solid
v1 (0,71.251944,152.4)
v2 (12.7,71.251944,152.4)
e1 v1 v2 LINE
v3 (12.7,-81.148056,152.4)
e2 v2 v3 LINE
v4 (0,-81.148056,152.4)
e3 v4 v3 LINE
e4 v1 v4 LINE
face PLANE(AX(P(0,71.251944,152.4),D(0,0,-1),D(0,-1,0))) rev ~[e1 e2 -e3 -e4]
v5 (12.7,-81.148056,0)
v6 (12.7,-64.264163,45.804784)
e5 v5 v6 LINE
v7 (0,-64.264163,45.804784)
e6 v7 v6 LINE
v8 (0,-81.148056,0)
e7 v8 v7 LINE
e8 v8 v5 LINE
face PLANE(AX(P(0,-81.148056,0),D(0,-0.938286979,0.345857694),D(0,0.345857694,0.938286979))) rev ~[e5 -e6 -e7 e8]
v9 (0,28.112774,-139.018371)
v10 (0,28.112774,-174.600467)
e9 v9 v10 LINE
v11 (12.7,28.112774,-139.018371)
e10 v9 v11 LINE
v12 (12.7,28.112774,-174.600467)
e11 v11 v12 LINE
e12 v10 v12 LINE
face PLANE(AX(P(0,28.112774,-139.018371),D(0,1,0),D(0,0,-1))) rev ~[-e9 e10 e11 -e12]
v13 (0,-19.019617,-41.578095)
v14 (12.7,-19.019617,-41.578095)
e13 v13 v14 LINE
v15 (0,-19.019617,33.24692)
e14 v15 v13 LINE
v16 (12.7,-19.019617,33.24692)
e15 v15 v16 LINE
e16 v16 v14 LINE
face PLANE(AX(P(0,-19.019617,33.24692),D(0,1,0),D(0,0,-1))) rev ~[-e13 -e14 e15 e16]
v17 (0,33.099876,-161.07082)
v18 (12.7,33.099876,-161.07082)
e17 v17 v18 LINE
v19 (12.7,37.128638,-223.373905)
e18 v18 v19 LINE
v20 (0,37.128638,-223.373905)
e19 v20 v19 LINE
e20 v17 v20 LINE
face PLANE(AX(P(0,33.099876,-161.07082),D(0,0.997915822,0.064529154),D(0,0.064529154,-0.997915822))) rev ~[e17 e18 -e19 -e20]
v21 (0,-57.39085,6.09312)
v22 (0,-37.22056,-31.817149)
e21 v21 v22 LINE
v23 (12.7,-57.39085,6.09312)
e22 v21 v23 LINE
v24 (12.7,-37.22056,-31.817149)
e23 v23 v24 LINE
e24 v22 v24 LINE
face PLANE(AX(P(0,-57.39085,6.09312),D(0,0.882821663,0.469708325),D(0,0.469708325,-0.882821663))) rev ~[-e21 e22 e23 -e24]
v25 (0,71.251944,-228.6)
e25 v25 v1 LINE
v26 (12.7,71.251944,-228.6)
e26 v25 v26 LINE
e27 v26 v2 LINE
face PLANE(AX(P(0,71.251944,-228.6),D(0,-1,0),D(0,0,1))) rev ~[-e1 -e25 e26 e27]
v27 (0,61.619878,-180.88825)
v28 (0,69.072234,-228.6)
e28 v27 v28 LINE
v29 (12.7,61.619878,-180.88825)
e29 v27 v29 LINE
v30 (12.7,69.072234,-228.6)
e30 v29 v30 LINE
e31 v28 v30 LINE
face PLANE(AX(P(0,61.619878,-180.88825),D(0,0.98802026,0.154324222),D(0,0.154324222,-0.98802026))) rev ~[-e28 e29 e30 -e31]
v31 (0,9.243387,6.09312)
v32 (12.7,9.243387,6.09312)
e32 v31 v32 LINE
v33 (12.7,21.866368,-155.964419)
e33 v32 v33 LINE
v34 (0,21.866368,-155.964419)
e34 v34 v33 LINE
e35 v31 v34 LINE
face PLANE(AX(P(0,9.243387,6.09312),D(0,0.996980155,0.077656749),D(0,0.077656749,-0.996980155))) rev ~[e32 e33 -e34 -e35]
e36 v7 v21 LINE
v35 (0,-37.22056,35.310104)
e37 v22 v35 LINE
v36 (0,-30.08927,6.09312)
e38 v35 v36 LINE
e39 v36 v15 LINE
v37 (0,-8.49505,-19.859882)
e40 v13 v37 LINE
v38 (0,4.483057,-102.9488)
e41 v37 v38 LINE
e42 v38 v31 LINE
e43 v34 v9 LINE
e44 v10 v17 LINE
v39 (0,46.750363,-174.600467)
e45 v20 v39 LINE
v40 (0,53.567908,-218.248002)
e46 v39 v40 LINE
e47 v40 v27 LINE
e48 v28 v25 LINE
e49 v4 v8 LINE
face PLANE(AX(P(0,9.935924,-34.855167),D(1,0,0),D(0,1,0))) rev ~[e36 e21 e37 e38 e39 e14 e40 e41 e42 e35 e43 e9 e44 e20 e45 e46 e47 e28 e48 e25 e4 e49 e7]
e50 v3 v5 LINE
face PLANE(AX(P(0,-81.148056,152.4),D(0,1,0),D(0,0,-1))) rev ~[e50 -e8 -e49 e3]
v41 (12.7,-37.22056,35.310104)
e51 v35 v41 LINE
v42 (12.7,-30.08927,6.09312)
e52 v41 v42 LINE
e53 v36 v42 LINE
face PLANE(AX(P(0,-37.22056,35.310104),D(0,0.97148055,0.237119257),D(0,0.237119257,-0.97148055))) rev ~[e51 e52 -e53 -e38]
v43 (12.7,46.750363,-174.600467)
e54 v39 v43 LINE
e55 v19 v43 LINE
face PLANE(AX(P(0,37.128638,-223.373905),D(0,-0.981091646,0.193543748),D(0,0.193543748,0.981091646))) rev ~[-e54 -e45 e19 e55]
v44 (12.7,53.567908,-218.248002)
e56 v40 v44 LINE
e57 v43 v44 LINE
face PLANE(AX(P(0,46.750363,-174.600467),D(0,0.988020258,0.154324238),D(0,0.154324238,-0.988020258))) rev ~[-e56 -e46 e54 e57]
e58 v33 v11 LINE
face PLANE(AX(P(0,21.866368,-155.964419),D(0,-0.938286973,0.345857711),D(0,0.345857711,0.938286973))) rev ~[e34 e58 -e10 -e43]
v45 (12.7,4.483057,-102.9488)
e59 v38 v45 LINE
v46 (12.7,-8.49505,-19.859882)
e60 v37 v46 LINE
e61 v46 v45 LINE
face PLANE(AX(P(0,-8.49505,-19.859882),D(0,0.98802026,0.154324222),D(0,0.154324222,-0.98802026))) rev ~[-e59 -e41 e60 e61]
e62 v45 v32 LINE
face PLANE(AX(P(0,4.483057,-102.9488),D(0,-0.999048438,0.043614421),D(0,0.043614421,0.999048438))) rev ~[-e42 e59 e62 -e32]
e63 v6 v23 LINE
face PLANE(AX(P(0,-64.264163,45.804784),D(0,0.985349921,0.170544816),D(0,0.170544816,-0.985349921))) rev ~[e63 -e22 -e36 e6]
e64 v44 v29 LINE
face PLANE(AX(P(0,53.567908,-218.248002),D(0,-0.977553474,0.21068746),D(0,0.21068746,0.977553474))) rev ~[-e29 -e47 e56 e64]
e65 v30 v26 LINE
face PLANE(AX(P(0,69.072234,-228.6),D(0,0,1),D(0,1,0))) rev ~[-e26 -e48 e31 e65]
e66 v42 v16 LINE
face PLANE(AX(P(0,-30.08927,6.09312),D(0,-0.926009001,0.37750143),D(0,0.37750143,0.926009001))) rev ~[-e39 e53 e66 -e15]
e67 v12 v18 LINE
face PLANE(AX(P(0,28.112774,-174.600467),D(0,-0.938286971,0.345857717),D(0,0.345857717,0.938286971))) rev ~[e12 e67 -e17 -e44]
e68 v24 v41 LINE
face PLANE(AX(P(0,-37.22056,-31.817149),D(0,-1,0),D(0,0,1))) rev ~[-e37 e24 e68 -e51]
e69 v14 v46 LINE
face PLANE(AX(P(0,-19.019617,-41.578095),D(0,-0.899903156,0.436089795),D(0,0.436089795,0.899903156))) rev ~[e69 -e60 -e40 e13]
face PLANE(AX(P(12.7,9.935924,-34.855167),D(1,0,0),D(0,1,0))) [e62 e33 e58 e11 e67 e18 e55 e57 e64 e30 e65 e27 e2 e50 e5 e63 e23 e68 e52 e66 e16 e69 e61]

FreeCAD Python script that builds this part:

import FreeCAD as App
import Part
import Sketcher

V = App.Vector
Q = App.Units.Quantity


def add_polygon(sketch, points):
    """Adds a closed chain of lines whose ends are joined by coincident constraints."""
    first, n = sketch.GeometryCount, len(points)
    for a, b in zip(points, points[1:] + points[:1]):
        sketch.addGeometry(Part.LineSegment(App.Vector(*a, 0), App.Vector(*b, 0)), False)
    for i in range(n):
        sketch.addConstraint(Sketcher.Constraint("Coincident", first + i, 2, first + (i + 1) % n, 1))

doc = App.newDocument("Part")
body = doc.addObject("PartDesign::Body", "Body")

# Sketch on YZ plane
sketch1 = body.newObject("Sketcher::SketchObject", "Sketch")
sketch1.AttachmentSupport = (doc.getObject("YZ_Plane"), [""])
sketch1.MapMode = "FlatFace"
add_polygon(sketch1, [(-81.148056, 152.4), (-81.148056, 0), (-64.264163, 45.804784), (-57.39085, 6.09312), (-37.22056, -31.817149), (-37.22056, 35.310104), (-30.08927, 6.09312), (-19.019617, 33.24692), (-19.019617, -41.578095), (-8.49505, -19.859882), (4.483057, -102.9488), (9.243387, 6.09312), (21.866368, -155.964419), (28.112774, -139.018371), (28.112774, -174.600467), (33.099876, -161.07082), (37.128638, -223.373905), (46.750363, -174.600467), (53.567908, -218.248002), (61.619878, -180.88825), (69.072234, -228.6), (71.251944, -228.6), (71.251944, 152.4)])  # lines 0-22
sketch1.addConstraint([
    Sketcher.Constraint("Vertical", 0),
    Sketcher.Constraint("Vertical", 4),
    Sketcher.Constraint("Vertical", 7),
    Sketcher.Constraint("Vertical", 13),
    Sketcher.Constraint("Horizontal", 20),
    Sketcher.Constraint("Vertical", 21),
    Sketcher.Constraint("Horizontal", 22),
    Sketcher.Constraint("PointOnObject", 0, 2, -1),
    Sketcher.Constraint("Parallel", 1, 12),
    Sketcher.Constraint("Parallel", 12, 14),
    Sketcher.Constraint("Parallel", 9, 17),
    Sketcher.Constraint("Parallel", 17, 19),
    Sketcher.Constraint("Horizontal", 2, 2, 5, 2),
    Sketcher.Constraint("Horizontal", 5, 2, 10, 2),
    Sketcher.Constraint("Horizontal", 13, 2, 16, 2),
    Sketcher.Constraint("Equal", 22, 0),
    Sketcher.Constraint("DistanceX", 22, 2, 22, 1, Q("6 in")),
    Sketcher.Constraint("DistanceY", 21, 1, 21, 2, Q("15 in")),
    Sketcher.Constraint("DistanceX", 18, 2, 19, 2, Q("0.2933998 in")),
    Sketcher.Constraint("DistanceX", 20, 1, 20, 2, 2.17971),
    Sketcher.Constraint("DistanceY", 9, 2, -1, 1, 102.9488),
    Sketcher.Constraint("DistanceY", 5, 2, 6, 2, 27.1538),
    Sketcher.Constraint("DistanceY", 8, 2, 5, 2, 25.953002),
    Sketcher.Constraint("DistanceX", 2, 2, 8, 2, 48.8958),
    Sketcher.Constraint("DistanceY", 14, 2, 11, 2, 5.106401),
    Sketcher.Constraint("DistanceX", 14, 2, 18, 2, 28.520002),
    Sketcher.Constraint("Distance", 3, 42.94216),
    Sketcher.Constraint("Distance", 9, 84.096371),
    Sketcher.Constraint("Distance", 10, 109.145779),
    Sketcher.Constraint("Distance", 11, 162.54841),
    Sketcher.Constraint("Distance", 14, 14.419519),
    Sketcher.Constraint("Distance", 17, 44.176761),
    Sketcher.Constraint("DistanceY", 4, 1, 4, 2, 67.127253),
    Sketcher.Constraint("DistanceY", 7, 2, 7, 1, 74.825015),
    Sketcher.Constraint("DistanceY", 13, 2, 13, 1, 35.582096),
    Sketcher.Constraint("DistanceX", 2, 2, -1, 1, 57.39085),
    Sketcher.Constraint("DistanceY", -1, 1, 2, 2, 6.09312),
    Sketcher.Constraint("DistanceX", 3, 2, -1, 1, 37.22056),
    Sketcher.Constraint("DistanceX", 5, 2, -1, 1, 30.08927),
    Sketcher.Constraint("DistanceX", -1, 1, 11, 2, 21.866368),
    Sketcher.Constraint("DistanceY", 12, 2, -1, 1, 139.018371),
    Sketcher.Constraint("DistanceX", -1, 1, 15, 2, 37.128638),
    Sketcher.Constraint("DistanceX", -1, 1, 17, 2, 53.567908),
    Sketcher.Constraint("DistanceY", 4, 2, 1, 2, 10.49468),
    Sketcher.Constraint("DistanceX", 0, 2, 7, 2, 62.128439),
    Sketcher.Constraint("Distance", 15, 62.433207),
])
pad1 = body.newObject("PartDesign::Pad", "Pad")
pad1.Profile = sketch1
pad1.Length = Q("0.5 in")

doc.recompute()
